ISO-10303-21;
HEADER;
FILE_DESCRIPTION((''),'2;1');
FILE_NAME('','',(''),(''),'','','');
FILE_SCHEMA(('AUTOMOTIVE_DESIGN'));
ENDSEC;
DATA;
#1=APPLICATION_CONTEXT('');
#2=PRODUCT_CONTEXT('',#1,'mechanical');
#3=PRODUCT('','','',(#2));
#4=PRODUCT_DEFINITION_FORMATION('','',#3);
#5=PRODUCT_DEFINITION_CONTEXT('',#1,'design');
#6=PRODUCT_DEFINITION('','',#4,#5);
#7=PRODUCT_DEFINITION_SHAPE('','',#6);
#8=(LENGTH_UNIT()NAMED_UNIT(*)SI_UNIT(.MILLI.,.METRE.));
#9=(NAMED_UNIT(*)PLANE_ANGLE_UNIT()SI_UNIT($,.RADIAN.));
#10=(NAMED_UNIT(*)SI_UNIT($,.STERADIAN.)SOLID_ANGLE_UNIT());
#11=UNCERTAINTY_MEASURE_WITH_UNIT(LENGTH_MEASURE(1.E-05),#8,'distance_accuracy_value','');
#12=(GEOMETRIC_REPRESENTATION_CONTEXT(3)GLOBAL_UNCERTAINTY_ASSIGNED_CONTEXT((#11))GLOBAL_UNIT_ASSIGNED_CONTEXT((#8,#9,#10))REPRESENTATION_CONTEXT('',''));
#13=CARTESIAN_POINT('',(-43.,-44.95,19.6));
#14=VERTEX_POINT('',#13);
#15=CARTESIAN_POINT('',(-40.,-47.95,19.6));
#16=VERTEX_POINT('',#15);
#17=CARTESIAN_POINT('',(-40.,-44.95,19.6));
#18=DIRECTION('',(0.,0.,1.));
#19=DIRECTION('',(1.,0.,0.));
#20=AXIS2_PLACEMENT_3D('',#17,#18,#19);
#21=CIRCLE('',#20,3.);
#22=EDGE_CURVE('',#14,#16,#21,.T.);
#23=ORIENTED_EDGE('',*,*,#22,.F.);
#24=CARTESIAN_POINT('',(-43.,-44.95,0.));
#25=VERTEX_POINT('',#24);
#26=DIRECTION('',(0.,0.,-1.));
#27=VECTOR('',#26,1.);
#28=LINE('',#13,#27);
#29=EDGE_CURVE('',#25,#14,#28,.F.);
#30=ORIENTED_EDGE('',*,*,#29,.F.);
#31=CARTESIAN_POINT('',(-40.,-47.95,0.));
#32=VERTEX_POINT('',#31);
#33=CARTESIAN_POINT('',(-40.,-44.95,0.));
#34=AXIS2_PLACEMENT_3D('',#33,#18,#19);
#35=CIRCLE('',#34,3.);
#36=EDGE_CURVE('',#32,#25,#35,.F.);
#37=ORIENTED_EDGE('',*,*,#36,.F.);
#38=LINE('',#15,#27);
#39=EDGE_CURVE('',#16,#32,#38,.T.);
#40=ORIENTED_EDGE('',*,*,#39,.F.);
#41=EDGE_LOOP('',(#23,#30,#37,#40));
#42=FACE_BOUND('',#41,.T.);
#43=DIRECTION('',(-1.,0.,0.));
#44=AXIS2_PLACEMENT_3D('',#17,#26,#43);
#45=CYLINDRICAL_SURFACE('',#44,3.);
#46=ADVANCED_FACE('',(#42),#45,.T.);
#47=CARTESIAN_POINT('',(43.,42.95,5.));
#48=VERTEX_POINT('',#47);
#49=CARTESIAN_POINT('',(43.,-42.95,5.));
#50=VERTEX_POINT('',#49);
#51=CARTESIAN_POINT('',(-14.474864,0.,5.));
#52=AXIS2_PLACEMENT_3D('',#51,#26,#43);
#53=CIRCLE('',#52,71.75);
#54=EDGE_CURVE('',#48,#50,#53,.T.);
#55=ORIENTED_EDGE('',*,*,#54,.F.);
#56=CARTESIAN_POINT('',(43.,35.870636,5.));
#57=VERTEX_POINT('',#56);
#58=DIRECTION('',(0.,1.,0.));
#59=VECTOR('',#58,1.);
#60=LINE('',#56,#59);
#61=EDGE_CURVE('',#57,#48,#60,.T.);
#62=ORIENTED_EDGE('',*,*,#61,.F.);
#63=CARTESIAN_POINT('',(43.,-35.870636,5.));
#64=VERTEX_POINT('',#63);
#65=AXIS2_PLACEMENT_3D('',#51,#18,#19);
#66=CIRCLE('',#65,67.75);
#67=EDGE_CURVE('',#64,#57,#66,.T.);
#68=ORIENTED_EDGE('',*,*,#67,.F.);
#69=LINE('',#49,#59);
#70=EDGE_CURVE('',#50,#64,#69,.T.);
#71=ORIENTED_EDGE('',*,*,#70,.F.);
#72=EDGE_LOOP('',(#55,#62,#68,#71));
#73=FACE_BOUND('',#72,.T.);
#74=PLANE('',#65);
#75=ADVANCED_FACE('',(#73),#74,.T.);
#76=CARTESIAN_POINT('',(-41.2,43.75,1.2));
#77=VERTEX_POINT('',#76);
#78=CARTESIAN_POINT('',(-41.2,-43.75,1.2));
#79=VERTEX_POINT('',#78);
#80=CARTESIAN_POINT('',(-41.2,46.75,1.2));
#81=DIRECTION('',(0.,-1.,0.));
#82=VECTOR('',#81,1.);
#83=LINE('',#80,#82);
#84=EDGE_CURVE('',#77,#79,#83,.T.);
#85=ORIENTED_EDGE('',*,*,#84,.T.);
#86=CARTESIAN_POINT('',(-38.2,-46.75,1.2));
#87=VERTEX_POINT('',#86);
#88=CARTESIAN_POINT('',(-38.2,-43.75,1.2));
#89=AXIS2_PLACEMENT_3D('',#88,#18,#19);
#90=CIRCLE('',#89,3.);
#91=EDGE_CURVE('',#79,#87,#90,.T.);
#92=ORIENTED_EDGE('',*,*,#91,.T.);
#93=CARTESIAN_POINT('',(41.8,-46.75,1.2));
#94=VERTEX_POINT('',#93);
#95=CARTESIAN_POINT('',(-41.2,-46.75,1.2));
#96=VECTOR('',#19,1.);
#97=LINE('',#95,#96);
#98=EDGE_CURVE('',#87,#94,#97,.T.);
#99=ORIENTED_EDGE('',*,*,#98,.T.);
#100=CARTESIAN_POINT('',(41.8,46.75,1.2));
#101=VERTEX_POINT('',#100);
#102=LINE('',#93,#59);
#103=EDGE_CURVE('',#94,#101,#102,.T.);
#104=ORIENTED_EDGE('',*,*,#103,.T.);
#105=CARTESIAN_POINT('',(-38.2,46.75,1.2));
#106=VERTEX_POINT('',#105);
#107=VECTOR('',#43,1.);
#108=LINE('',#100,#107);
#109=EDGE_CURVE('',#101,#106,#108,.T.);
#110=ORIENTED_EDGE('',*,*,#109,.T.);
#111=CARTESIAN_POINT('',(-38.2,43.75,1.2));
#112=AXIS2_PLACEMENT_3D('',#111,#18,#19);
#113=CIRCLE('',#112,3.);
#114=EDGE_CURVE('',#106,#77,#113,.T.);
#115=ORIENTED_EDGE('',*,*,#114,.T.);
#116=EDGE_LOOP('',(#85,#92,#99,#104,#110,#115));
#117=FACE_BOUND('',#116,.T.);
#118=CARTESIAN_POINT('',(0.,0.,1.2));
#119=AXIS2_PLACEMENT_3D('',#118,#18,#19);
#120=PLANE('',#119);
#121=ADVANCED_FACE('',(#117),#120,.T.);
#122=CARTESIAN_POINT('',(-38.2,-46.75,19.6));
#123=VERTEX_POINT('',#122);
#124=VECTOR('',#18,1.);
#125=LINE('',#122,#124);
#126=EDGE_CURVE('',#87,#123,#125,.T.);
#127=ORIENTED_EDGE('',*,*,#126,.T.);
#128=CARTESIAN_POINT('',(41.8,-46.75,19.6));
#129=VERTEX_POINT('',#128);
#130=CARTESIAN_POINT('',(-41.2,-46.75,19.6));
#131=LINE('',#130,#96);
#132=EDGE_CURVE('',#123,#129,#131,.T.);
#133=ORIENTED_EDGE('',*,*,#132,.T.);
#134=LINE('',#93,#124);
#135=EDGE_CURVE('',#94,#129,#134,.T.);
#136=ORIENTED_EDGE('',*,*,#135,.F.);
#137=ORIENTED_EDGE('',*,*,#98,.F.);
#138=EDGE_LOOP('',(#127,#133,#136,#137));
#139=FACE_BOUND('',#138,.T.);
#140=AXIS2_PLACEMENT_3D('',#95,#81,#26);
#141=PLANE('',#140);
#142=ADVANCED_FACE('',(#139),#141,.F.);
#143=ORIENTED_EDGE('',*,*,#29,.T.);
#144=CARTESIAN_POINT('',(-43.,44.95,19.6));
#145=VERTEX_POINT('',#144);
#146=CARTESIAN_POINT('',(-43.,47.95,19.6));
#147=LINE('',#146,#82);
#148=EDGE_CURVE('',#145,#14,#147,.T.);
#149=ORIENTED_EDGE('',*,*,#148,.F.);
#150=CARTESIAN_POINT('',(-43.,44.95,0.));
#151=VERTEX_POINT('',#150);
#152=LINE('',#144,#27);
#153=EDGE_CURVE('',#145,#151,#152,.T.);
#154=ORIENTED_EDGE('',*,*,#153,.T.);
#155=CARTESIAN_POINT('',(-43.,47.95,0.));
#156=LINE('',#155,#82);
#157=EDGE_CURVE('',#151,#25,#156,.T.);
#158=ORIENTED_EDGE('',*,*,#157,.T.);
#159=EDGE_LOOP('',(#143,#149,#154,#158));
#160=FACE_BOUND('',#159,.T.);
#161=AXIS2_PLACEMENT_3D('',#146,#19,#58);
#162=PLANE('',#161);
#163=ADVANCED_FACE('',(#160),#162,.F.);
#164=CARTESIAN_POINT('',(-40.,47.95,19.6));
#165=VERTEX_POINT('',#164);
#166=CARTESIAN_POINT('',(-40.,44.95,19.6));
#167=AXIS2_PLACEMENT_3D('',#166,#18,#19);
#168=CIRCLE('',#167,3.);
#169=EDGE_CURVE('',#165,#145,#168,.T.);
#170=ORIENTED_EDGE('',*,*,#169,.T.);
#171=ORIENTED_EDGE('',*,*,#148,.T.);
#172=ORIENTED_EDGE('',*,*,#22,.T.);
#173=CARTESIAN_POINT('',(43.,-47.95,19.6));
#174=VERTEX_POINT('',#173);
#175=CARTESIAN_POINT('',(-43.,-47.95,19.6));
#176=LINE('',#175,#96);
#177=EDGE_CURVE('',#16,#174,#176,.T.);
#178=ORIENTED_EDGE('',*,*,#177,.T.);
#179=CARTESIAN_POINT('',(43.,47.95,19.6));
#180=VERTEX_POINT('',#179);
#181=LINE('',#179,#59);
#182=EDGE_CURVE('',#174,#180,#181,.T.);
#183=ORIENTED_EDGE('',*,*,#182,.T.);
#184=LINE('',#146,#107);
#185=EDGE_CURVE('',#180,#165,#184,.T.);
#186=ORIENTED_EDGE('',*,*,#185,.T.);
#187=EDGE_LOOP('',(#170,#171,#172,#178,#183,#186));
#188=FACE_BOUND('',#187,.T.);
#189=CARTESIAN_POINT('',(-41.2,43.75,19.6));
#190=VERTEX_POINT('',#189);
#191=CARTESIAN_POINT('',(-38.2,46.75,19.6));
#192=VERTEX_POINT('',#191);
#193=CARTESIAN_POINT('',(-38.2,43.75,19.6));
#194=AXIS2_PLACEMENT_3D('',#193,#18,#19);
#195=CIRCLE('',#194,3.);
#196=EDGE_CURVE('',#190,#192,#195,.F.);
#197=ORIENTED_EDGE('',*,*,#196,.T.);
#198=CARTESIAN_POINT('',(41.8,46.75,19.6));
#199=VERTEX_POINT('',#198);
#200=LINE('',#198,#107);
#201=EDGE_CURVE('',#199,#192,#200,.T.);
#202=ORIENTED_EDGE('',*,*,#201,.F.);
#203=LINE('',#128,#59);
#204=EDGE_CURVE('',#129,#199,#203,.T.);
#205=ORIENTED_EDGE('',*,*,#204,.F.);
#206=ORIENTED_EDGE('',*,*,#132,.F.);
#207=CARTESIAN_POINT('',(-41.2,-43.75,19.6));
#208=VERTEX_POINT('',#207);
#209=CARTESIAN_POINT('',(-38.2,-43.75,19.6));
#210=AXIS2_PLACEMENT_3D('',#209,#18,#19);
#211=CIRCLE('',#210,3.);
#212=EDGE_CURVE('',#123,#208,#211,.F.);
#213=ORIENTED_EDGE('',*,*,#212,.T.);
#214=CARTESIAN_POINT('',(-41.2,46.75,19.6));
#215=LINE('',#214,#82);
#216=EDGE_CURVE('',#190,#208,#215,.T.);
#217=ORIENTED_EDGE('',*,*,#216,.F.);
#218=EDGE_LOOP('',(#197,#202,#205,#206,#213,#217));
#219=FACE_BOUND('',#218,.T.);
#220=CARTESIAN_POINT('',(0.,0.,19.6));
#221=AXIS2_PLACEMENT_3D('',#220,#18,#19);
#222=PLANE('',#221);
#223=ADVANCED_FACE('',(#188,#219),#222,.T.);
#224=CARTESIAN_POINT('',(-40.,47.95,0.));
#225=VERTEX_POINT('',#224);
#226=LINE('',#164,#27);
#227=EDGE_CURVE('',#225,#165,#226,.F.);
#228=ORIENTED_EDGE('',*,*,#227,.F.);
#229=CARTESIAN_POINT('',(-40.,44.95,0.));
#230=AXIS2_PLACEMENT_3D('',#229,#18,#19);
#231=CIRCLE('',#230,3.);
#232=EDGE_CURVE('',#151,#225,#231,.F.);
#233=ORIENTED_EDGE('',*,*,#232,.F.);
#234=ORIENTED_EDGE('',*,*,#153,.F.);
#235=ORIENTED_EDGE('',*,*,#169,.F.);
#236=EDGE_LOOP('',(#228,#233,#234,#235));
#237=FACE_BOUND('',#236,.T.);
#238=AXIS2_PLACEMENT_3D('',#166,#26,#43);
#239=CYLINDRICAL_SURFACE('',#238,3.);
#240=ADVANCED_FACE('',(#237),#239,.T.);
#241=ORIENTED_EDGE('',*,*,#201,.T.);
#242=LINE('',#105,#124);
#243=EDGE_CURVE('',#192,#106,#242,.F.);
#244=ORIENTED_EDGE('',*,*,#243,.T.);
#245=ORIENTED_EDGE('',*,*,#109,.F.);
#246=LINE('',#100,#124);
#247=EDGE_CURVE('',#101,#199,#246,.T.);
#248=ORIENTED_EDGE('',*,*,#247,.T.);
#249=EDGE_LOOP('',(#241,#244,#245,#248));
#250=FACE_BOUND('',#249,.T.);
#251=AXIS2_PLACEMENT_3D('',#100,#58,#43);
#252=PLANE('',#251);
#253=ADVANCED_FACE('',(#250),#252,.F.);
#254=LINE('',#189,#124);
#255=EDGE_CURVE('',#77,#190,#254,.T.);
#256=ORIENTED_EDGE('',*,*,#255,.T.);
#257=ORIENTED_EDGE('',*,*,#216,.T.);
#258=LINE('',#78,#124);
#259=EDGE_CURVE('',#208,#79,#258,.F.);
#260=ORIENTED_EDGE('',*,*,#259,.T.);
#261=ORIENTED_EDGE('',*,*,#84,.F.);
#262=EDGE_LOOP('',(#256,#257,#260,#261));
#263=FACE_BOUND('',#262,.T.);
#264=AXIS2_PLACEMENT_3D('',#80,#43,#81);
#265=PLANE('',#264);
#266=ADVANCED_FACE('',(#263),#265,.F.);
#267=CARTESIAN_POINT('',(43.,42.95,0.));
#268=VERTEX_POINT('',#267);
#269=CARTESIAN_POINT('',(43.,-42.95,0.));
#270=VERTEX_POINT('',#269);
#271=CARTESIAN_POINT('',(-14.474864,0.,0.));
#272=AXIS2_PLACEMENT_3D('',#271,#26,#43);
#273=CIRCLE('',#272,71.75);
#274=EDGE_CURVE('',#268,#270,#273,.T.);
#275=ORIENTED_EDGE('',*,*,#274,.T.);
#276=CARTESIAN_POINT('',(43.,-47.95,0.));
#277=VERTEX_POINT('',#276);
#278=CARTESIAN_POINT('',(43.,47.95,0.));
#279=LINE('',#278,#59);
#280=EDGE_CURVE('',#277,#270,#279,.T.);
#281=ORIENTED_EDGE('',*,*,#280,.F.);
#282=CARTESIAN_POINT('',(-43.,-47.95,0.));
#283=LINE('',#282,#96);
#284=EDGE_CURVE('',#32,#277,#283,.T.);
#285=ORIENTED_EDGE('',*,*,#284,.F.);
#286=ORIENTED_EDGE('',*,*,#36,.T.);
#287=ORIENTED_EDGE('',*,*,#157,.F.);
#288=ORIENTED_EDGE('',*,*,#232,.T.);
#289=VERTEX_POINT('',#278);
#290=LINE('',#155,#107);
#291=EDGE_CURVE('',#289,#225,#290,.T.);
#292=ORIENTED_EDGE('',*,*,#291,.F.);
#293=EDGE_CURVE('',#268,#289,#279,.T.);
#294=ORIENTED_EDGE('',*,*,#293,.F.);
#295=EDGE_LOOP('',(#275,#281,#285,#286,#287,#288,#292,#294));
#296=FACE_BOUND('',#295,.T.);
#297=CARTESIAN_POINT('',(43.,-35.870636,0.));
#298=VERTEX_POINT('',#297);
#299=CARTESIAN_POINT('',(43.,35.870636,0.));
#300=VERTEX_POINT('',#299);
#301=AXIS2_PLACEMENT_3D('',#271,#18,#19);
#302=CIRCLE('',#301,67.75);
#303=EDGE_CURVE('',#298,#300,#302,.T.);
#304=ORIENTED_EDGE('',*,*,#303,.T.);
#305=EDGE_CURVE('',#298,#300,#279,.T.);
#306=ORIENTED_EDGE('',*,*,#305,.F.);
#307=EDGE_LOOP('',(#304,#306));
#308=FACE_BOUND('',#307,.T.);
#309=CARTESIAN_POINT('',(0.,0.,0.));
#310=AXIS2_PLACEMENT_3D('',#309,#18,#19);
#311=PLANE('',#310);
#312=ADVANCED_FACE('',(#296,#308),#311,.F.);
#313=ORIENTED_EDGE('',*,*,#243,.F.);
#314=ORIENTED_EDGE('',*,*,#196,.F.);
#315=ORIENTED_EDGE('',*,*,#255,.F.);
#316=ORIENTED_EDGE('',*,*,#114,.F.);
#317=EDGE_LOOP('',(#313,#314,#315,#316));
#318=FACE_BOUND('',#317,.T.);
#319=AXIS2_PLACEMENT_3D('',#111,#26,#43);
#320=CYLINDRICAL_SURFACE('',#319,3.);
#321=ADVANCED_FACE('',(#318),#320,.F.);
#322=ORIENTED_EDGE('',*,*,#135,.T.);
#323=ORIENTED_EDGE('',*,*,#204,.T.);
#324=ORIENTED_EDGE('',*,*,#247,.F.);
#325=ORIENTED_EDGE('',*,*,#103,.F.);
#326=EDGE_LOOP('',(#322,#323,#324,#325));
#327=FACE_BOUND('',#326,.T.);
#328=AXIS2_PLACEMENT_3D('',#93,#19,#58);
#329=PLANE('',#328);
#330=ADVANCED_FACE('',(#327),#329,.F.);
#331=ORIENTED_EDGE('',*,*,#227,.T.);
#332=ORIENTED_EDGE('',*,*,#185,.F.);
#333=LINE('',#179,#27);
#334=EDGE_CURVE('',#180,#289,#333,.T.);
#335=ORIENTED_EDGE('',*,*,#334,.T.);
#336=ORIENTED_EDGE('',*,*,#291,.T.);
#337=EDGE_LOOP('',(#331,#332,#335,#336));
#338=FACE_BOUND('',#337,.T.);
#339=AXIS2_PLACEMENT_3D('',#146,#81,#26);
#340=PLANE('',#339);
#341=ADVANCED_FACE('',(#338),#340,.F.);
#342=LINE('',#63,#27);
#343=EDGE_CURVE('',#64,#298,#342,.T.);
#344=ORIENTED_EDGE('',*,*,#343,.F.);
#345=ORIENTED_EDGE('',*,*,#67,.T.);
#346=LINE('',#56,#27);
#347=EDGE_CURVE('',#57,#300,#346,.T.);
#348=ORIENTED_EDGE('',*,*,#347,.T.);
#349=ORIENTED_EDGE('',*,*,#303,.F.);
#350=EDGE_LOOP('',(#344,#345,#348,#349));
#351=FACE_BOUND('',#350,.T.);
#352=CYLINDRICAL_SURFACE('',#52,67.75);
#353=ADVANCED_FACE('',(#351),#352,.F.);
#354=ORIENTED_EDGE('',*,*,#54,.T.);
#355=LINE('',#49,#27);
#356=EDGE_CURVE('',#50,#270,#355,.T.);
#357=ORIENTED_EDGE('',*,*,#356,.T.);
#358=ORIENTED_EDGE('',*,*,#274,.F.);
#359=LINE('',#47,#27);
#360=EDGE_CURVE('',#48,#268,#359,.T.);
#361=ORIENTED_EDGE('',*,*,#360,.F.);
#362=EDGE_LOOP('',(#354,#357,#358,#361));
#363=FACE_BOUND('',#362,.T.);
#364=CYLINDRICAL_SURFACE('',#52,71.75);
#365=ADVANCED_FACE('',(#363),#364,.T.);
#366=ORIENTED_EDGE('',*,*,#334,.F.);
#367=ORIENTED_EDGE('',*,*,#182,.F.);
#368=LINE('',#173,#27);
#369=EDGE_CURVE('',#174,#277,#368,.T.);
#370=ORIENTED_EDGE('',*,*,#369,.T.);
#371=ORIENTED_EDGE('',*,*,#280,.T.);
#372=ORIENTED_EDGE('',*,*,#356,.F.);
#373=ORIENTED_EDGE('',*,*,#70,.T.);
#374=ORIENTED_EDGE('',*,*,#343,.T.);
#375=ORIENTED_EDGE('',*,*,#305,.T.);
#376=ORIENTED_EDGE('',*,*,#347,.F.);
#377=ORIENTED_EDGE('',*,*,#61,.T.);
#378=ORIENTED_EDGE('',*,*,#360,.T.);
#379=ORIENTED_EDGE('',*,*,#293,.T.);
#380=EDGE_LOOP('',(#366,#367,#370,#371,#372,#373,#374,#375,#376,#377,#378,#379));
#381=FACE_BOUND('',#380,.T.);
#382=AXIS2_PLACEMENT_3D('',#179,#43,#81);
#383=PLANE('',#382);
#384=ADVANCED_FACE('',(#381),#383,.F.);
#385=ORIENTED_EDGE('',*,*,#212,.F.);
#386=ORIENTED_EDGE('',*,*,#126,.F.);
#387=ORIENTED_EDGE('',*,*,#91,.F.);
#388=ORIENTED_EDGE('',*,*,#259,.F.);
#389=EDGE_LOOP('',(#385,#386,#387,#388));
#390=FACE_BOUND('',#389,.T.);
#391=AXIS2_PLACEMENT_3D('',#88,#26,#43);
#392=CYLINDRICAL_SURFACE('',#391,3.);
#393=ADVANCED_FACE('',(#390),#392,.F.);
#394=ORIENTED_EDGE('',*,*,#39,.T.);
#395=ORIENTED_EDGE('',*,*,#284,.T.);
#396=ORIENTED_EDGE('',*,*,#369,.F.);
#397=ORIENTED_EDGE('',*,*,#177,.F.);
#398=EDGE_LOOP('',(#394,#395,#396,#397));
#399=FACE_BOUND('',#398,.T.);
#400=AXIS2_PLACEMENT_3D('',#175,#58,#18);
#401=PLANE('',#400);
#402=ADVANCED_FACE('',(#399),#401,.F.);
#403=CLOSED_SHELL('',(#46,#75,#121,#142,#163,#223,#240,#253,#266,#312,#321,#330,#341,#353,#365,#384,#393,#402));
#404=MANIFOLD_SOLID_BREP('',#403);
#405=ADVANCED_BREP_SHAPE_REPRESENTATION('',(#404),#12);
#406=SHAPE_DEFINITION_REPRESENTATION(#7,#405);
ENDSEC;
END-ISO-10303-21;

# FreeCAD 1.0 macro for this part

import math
import FreeCAD as App
import Part
import Sketcher
from FreeCAD import Vector


def edges_at(feature, points):
    """Names of the edges that pass closest to the given points."""
    edges = feature.Shape.Edges
    near = lambda p: min(range(len(edges)), key=lambda i: edges[i].distToShape(Part.Vertex(*p))[0])
    return sorted({f"Edge{near(p) + 1}" for p in points})


def add_polygon(sketch, points):
    """Adds a closed chain of lines whose ends are joined by coincident constraints."""
    first, n = sketch.GeometryCount, len(points)
    for a, b in zip(points, points[1:] + points[:1]):
        sketch.addGeometry(Part.LineSegment(App.Vector(*a, 0), App.Vector(*b, 0)), False)
    for i in range(n):
        sketch.addConstraint(Sketcher.Constraint("Coincident", first + i, 2, first + (i + 1) % n, 1))

doc = App.newDocument("Part")
body = doc.addObject("PartDesign::Body", "Body")

# Sketch on XY plane
sketch1 = body.newObject("Sketcher::SketchObject", "Sketch")
sketch1.AttachmentSupport = (doc.getObject("XY_Plane"), [""])
sketch1.MapMode = "FlatFace"
add_polygon(sketch1, [(-43, 48), (-43, -48), (43, -48), (43, 48)])  # lines 0-3
sketch1.addConstraint([
    Sketcher.Constraint("Vertical", 0),
    Sketcher.Constraint("Horizontal", 1),
    Sketcher.Constraint("Vertical", 2),
    Sketcher.Constraint("Horizontal", 3),
    Sketcher.Constraint("Symmetric", 0, 2, 2, 2, -1, 1),
    Sketcher.Constraint("DistanceX", 1, 1, 1, 2, 86.0),
    Sketcher.Constraint("DistanceY", 0, 2, 0, 1, 95.9),
])
pad1 = body.newObject("PartDesign::Pad", "Pad")
pad1.Profile = sketch1
pad1.Length = 19.6

# Sketch on XY plane
sketch2 = body.newObject("Sketcher::SketchObject", "Sketch001")
sketch2.AttachmentSupport = (doc.getObject("XY_Plane"), [""])
sketch2.MapMode = "FlatFace"
sketch2.addGeometry([
    Part.LineSegment(Vector(43, 36, 0), Vector(43, 43, 0)),
    Part.ArcOfCircle(Part.Circle(Vector(-14, 0, 0), Vector(0, 0, 1), 72), math.radians(-37), math.radians(37)),
    Part.LineSegment(Vector(43, -43, 0), Vector(43, -36, 0)),
    Part.ArcOfCircle(Part.Circle(Vector(-14, 0, 0), Vector(0, 0, 1), 68), math.radians(-32), math.radians(32)),
], False)
sketch2.addConstraint([
    Sketcher.Constraint("Coincident", 0, 2, 1, 2),
    Sketcher.Constraint("Coincident", 1, 1, 2, 1),
    Sketcher.Constraint("Coincident", 2, 2, 3, 1),
    Sketcher.Constraint("Coincident", 3, 2, 0, 1),
    Sketcher.Constraint("Vertical", 0),
    Sketcher.Constraint("Vertical", 2),
    Sketcher.Constraint("Coincident", 3, 3, 1, 3),
    Sketcher.Constraint("Symmetric", 0, 2, 1, 1, -1),
    Sketcher.Constraint("Radius", 1, 71.75),
    Sketcher.Constraint("Radius", 3, 67.75),
    Sketcher.Constraint("DistanceX", -1, 1, 0, 2, 43.0),
    Sketcher.Constraint("DistanceY", 1, 1, 0, 2, 85.9),
])
pad2 = body.newObject("PartDesign::Pad", "Pad001")
pad2.Profile = sketch2
pad2.Length = 5

# Sketch on XY plane
sketch3 = body.newObject("Sketcher::SketchObject", "Sketch002")
sketch3.AttachmentSupport = (doc.getObject("XY_Plane"), [""])
sketch3.MapMode = "FlatFace"
sketch3.AttachmentOffset = App.Placement(Vector(0, 0, 19.6), App.Rotation())
add_polygon(sketch3, [(-41, 47), (-41, -47), (42, -47), (42, 47)])  # lines 0-3
sketch3.addConstraint([
    Sketcher.Constraint("Vertical", 0),
    Sketcher.Constraint("Horizontal", 1),
    Sketcher.Constraint("Vertical", 2),
    Sketcher.Constraint("Horizontal", 3),
    Sketcher.Constraint("DistanceX", 1, 1, 1, 2, 83.0),
    Sketcher.Constraint("DistanceY", 0, 2, 0, 1, 93.5),
    Sketcher.Constraint("DistanceX", 0, 2, -1, 1, 41.2),
    Sketcher.Constraint("DistanceY", 0, 2, -1, 1, 46.75),
])
pocket1 = body.newObject("PartDesign::Pocket", "Pocket")
pocket1.Profile = sketch3
pocket1.Length = 18.4
doc.recompute()

fillet = body.newObject("PartDesign::Fillet", "Fillet")
fillet.Base = (pocket1, edges_at(pocket1, [
    (-41.2, -46.75, 10.4),
    (-41.2, 46.75, 10.4),
    (-43, -47.95, 9.8),
    (-43, 47.95, 9.8),
]))
fillet.Radius = 3

doc.recompute()
